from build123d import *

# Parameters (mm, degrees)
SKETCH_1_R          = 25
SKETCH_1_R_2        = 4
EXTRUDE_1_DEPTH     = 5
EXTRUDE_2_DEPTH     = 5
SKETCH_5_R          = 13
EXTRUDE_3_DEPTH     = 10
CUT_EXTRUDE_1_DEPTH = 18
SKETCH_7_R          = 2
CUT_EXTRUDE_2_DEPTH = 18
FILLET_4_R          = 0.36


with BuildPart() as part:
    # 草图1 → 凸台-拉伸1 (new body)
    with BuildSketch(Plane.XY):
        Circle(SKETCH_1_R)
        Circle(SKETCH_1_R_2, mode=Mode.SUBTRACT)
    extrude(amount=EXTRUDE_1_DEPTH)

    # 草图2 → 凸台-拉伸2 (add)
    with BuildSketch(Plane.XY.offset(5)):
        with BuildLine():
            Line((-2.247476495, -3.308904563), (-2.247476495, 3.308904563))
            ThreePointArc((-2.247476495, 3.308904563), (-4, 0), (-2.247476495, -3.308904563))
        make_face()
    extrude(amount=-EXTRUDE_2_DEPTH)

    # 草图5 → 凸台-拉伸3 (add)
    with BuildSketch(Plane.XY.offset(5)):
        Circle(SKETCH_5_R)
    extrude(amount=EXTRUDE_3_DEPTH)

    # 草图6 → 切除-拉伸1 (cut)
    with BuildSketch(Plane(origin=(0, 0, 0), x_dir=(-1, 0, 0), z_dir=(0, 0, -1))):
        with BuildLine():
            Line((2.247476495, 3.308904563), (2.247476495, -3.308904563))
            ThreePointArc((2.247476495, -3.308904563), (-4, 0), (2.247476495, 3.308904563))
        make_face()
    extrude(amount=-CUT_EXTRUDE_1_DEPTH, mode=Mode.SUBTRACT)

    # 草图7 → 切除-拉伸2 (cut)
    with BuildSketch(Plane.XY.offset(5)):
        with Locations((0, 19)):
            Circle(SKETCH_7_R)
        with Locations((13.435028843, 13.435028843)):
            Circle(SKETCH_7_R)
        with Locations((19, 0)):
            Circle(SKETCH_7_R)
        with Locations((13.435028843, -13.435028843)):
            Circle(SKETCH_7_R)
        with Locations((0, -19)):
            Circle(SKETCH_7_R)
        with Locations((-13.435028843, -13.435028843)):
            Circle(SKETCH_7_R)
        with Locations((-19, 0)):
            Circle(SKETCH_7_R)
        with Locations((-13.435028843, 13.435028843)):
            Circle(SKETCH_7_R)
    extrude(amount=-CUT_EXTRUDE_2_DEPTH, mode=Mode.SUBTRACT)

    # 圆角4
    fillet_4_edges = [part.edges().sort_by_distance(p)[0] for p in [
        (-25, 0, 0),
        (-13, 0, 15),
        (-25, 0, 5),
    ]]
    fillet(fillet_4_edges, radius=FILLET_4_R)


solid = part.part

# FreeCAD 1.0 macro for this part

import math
import FreeCAD as App
import Part
import Sketcher

V = App.Vector


def edges_at(feature, points):
    """Names of the edges that pass closest to the given points."""
    edges = feature.Shape.Edges
    near = lambda p: min(range(len(edges)), key=lambda i: edges[i].distToShape(Part.Vertex(*p))[0])
    return sorted({f"Edge{near(p) + 1}" for p in points})

doc = App.newDocument("Part")
body = doc.addObject("PartDesign::Body", "Body")

sketch1 = doc.addObject("Sketcher::SketchObject", "Sketch")
body.addObject(sketch1)
sketch1.AttachmentSupport = (doc.XY_Plane, [""])
sketch1.MapMode = "FlatFace"
sketch1.addGeometry([
    Part.Circle(V(0, 0, 0), V(0, 0, 1), 25),
    Part.Circle(V(0, 0, 0), V(0, 0, 1), 4),
], False)
sketch1.addConstraint([
    Sketcher.Constraint("Coincident", 0, 3, -1, 1),
    Sketcher.Constraint("Coincident", 1, 3, -1, 1),
    Sketcher.Constraint("Diameter", 0, 50.0),
    Sketcher.Constraint("Diameter", 1, 8.0),
])
pad1 = doc.addObject("PartDesign::Pad", "Pad")
body.addObject(pad1)
pad1.Profile = sketch1
pad1.Length = 5

sketch2 = doc.addObject("Sketcher::SketchObject", "Sketch001")
body.addObject(sketch2)
sketch2.AttachmentSupport = (doc.XY_Plane, [""])
sketch2.MapMode = "FlatFace"
sketch2.AttachmentOffset = App.Placement(V(0, 0, 5), App.Rotation())
sketch2.addGeometry([
    Part.LineSegment(V(-2.2, -3.3, 0), V(-2.2, 3.3, 0)),
    Part.ArcOfCircle(Part.Circle(V(0, 0, 0), V(0, 0, 1), 4), math.radians(124), math.radians(236)),
], False)
sketch2.addConstraint([
    Sketcher.Constraint("Coincident", 0, 1, 1, 2),
    Sketcher.Constraint("Coincident", 1, 1, 0, 2),
    Sketcher.Constraint("Vertical", 0),
    Sketcher.Constraint("Coincident", 1, 3, -1, 1),
    Sketcher.Constraint("Radius", 1, 4.0),
    Sketcher.Constraint("DistanceY", 0, 1, 0, 2, 6.617809),
])
pad2 = doc.addObject("PartDesign::Pad", "Pad001")
body.addObject(pad2)
pad2.Profile = sketch2
pad2.Length = 5
pad2.Reversed = True

sketch3 = doc.addObject("Sketcher::SketchObject", "Sketch002")
body.addObject(sketch3)
sketch3.AttachmentSupport = (doc.XY_Plane, [""])
sketch3.MapMode = "FlatFace"
sketch3.AttachmentOffset = App.Placement(V(0, 0, 5), App.Rotation())
sketch3.addGeometry(Part.Circle(V(0, 0, 0), V(0, 0, 1), 13), False)
sketch3.addConstraint([
    Sketcher.Constraint("Coincident", 0, 3, -1, 1),
    Sketcher.Constraint("Diameter", 0, 26.0),
])
pad3 = doc.addObject("PartDesign::Pad", "Pad002")
body.addObject(pad3)
pad3.Profile = sketch3
pad3.Length = 10

sketch4 = doc.addObject("Sketcher::SketchObject", "Sketch003")
body.addObject(sketch4)
sketch4.AttachmentSupport = (doc.XY_Plane, [""])
sketch4.MapMode = "FlatFace"
sketch4.addGeometry([
    Part.LineSegment(V(-2.2, -3.3, 0), V(-2.2, 3.3, 0)),
    Part.ArcOfCircle(Part.Circle(V(0, 0, 0), V(0, 0, 1), 4), math.radians(-124), math.radians(124)),
], False)
sketch4.addConstraint([
    Sketcher.Constraint("Coincident", 0, 1, 1, 1),
    Sketcher.Constraint("Coincident", 1, 2, 0, 2),
    Sketcher.Constraint("Vertical", 0),
    Sketcher.Constraint("Coincident", 1, 3, -1, 1),
    Sketcher.Constraint("Radius", 1, 4.0),
    Sketcher.Constraint("DistanceY", 0, 1, 0, 2, 6.617809),
])
pocket1 = doc.addObject("PartDesign::Pocket", "Pocket")
body.addObject(pocket1)
pocket1.Profile = sketch4
pocket1.Length = 18
pocket1.Reversed = True

sketch5 = doc.addObject("Sketcher::SketchObject", "Sketch004")
body.addObject(sketch5)
sketch5.AttachmentSupport = (doc.XY_Plane, [""])
sketch5.MapMode = "FlatFace"
sketch5.AttachmentOffset = App.Placement(V(0, 0, 5), App.Rotation())
sketch5.addGeometry([
    Part.Circle(V(0, 19, 0), V(0, 0, 1), 2),
    Part.Circle(V(13.4, 13.4, 0), V(0, 0, 1), 2),
    Part.Circle(V(19, 0, 0), V(0, 0, 1), 2),
    Part.Circle(V(13.4, -13.4, 0), V(0, 0, 1), 2),
    Part.Circle(V(0, -19, 0), V(0, 0, 1), 2),
    Part.Circle(V(-13.4, -13.4, 0), V(0, 0, 1), 2),
    Part.Circle(V(-19, 0, 0), V(0, 0, 1), 2),
    Part.Circle(V(-13.4, 13.4, 0), V(0, 0, 1), 2),
], False)
sketch5.addConstraint([
    Sketcher.Constraint("Equal", 0, 1),
    Sketcher.Constraint("Equal", 1, 2),
    Sketcher.Constraint("Equal", 2, 3),
    Sketcher.Constraint("Equal", 3, 4),
    Sketcher.Constraint("Equal", 4, 5),
    Sketcher.Constraint("Equal", 5, 6),
    Sketcher.Constraint("Equal", 6, 7),
    Sketcher.Constraint("Symmetric", 0, 3, 4, 3, -1, 1),
    Sketcher.Constraint("Symmetric", 1, 3, 5, 3, -1, 1),
    Sketcher.Constraint("Symmetric", 2, 3, 6, 3, -1, 1),
    Sketcher.Constraint("Symmetric", 3, 3, 7, 3, -1, 1),
    Sketcher.Constraint("Symmetric", 3, 3, 5, 3, -2),
    Sketcher.Constraint("PointOnObject", 0, 3, -2),
    Sketcher.Constraint("PointOnObject", 2, 3, -1),
    Sketcher.Constraint("Diameter", 0, 4.0),
    Sketcher.Constraint("DistanceY", -1, 1, 0, 3, 19.0),
    Sketcher.Constraint("DistanceX", -1, 1, 2, 3, 19.0),
    Sketcher.Constraint("DistanceX", -1, 1, 1, 3, 13.435029),
    Sketcher.Constraint("DistanceY", -1, 1, 1, 3, 13.435029),
])
pocket2 = doc.addObject("PartDesign::Pocket", "Pocket001")
body.addObject(pocket2)
pocket2.Profile = sketch5
pocket2.Length = 18
doc.recompute()

fillet = doc.addObject("PartDesign::Fillet", "Fillet")
body.addObject(fillet)
fillet.Base = (pocket2, edges_at(pocket2, [(-25, 0, 0), (-13, 0, 15), (-25, 0, 5)]))
fillet.Radius = 0.36

doc.recompute()
